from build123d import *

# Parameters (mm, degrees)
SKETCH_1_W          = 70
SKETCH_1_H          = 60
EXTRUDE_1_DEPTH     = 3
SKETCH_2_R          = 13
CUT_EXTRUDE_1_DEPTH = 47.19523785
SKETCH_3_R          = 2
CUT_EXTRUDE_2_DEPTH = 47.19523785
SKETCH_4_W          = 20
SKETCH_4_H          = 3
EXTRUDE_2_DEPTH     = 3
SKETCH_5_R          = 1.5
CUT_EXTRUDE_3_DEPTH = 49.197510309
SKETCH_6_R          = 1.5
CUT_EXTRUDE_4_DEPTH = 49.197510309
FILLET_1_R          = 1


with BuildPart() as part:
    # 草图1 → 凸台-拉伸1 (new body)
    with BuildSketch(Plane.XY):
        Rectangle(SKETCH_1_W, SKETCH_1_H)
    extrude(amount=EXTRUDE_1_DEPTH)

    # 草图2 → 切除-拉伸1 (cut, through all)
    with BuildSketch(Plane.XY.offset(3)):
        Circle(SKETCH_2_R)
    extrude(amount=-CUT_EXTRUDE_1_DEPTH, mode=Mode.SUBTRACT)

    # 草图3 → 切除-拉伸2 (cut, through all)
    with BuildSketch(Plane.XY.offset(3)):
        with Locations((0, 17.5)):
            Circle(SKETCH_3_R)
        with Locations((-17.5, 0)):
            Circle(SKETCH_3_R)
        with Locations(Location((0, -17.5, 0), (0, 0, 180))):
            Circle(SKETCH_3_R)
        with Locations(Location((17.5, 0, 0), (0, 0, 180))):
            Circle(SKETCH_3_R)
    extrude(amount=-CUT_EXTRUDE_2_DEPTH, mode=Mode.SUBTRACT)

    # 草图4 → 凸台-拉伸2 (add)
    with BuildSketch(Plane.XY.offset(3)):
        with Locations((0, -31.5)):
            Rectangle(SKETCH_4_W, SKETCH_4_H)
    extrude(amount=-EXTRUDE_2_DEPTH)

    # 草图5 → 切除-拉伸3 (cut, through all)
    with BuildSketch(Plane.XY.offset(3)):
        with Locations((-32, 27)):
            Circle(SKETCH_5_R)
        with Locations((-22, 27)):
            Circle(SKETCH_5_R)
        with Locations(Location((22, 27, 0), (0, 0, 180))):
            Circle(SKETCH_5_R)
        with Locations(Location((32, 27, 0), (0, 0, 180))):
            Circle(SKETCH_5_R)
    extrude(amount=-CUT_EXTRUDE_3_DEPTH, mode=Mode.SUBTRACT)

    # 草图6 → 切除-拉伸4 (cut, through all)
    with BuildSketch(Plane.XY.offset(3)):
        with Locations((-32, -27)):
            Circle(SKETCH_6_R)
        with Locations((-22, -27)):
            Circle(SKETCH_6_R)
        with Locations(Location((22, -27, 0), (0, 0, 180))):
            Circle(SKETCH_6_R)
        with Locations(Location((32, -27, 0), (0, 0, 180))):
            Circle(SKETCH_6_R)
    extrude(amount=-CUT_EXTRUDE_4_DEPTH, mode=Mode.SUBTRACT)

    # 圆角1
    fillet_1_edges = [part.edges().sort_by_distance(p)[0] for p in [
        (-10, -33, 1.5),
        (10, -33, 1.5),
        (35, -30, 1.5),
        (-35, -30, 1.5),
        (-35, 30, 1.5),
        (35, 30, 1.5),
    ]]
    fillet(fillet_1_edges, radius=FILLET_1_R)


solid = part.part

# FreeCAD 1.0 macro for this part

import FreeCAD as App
import Part
import Sketcher
from FreeCAD import Vector
Q = App.Units.Quantity


def edges_at(feature, points):
    """Names of the edges that pass closest to the given points."""
    edges = feature.Shape.Edges
    near = lambda p: min(range(len(edges)), key=lambda i: edges[i].distToShape(Part.Vertex(*p))[0])
    return sorted({f"Edge{near(p) + 1}" for p in points})

doc = App.newDocument("Part")
params = doc.addObject("Spreadsheet::Sheet", "Params")
for row, (alias, value) in enumerate([
    ("sketch1_width", "70 mm"),
    ("sketch1_height", "60 mm"),
    ("pad1_length", "3 mm"),
    ("sketch2_diameter", "26 mm"),
    ("sketch3_diameter", "4 mm"),
    ("sketch4_width", "20 mm"),
    ("sketch4_height", "3 mm"),
    ("pad2_length", "3 mm"),
    ("sketch5_diameter", "3 mm"),
    ("sketch6_diameter", "3 mm"),
    ("fillet_radius", "1 mm"),
], start=1):
    params.set(f"A{row}", alias)
    params.set(f"B{row}", "=" + value)
    params.setAlias(f"B{row}", alias)

body = doc.addObject("PartDesign::Body", "Body")

# Sketch on XY plane
sketch1 = body.newObject("Sketcher::SketchObject", "Sketch")
sketch1.AttachmentSupport = (doc.getObject("XY_Plane"), [""])
sketch1.MapMode = "FlatFace"
sketch1.addGeometry(Part.LineSegment(Vector(-35, 30, 0), Vector(-35, -30, 0)), False)
sketch1.addGeometry(Part.LineSegment(Vector(-35, -30, 0), Vector(35, -30, 0)), False)
sketch1.addGeometry(Part.LineSegment(Vector(35, -30, 0), Vector(35, 30, 0)), False)
sketch1.addGeometry(Part.LineSegment(Vector(35, 30, 0), Vector(-35, 30, 0)), False)
sketch1.addConstraint(Sketcher.Constraint("Coincident", 0, 2, 1, 1))
sketch1.addConstraint(Sketcher.Constraint("Coincident", 1, 2, 2, 1))
sketch1.addConstraint(Sketcher.Constraint("Coincident", 2, 2, 3, 1))
sketch1.addConstraint(Sketcher.Constraint("Coincident", 3, 2, 0, 1))
sketch1.addConstraint(Sketcher.Constraint("Vertical", 0))
sketch1.addConstraint(Sketcher.Constraint("Horizontal", 1))
sketch1.addConstraint(Sketcher.Constraint("Vertical", 2))
sketch1.addConstraint(Sketcher.Constraint("Horizontal", 3))
sketch1.addConstraint(Sketcher.Constraint("Symmetric", 0, 2, 2, 2, -1, 1))
sketch1.addConstraint(Sketcher.Constraint("DistanceX", 1, 1, 1, 2, Q("70 mm")))
sketch1.addConstraint(Sketcher.Constraint("DistanceY", 0, 2, 0, 1, Q("60 mm")))
sketch1.setExpression("Constraints[9]", "Params.sketch1_width")
sketch1.setExpression("Constraints[10]", "Params.sketch1_height")
pad1 = body.newObject("PartDesign::Pad", "Pad")
pad1.Profile = sketch1
pad1.setExpression("Length", "Params.pad1_length")

# Sketch on XY plane
sketch2 = body.newObject("Sketcher::SketchObject", "Sketch001")
sketch2.AttachmentSupport = (doc.getObject("XY_Plane"), [""])
sketch2.MapMode = "FlatFace"
sketch2.AttachmentOffset = App.Placement(Vector(0, 0, 3), App.Rotation())
sketch2.addGeometry(Part.Circle(Vector(0, 0, 0), Vector(0, 0, 1), 13), False)
sketch2.addConstraint(Sketcher.Constraint("Coincident", 0, 3, -1, 1))
sketch2.addConstraint(Sketcher.Constraint("Diameter", 0, Q("26 mm")))
sketch2.setExpression("Constraints[1]", "Params.sketch2_diameter")
pocket1 = body.newObject("PartDesign::Pocket", "Pocket")
pocket1.Profile = sketch2
pocket1.Type = "ThroughAll"

# Sketch on XY plane
sketch3 = body.newObject("Sketcher::SketchObject", "Sketch002")
sketch3.AttachmentSupport = (doc.getObject("XY_Plane"), [""])
sketch3.MapMode = "FlatFace"
sketch3.AttachmentOffset = App.Placement(Vector(0, 0, 3), App.Rotation())
sketch3.addGeometry(Part.Circle(Vector(0, 17.5, 0), Vector(0, 0, 1), 2), False)
sketch3.addGeometry(Part.Circle(Vector(-17.5, 0, 0), Vector(0, 0, 1), 2), False)
sketch3.addGeometry(Part.Circle(Vector(0, -17.5, 0), Vector(0, 0, 1), 2), False)
sketch3.addGeometry(Part.Circle(Vector(17.5, 0, 0), Vector(0, 0, 1), 2), False)
sketch3.addConstraint(Sketcher.Constraint("Equal", 0, 1))
sketch3.addConstraint(Sketcher.Constraint("Equal", 1, 2))
sketch3.addConstraint(Sketcher.Constraint("Equal", 2, 3))
sketch3.addConstraint(Sketcher.Constraint("Symmetric", 0, 3, 2, 3, -1, 1))
sketch3.addConstraint(Sketcher.Constraint("Symmetric", 1, 3, 3, 3, -1, 1))
sketch3.addConstraint(Sketcher.Constraint("PointOnObject", 0, 3, -2))
sketch3.addConstraint(Sketcher.Constraint("PointOnObject", 1, 3, -1))
sketch3.addConstraint(Sketcher.Constraint("Diameter", 0, Q("4 mm")))
sketch3.addConstraint(Sketcher.Constraint("DistanceY", 2, 3, 0, 3, Q("35 mm")))
sketch3.addConstraint(Sketcher.Constraint("DistanceX", 1, 3, 3, 3, Q("35 mm")))
sketch3.setExpression("Constraints[7]", "Params.sketch3_diameter")
pocket2 = body.newObject("PartDesign::Pocket", "Pocket001")
pocket2.Profile = sketch3
pocket2.Type = "ThroughAll"

# Sketch on XY plane
sketch4 = body.newObject("Sketcher::SketchObject", "Sketch003")
sketch4.AttachmentSupport = (doc.getObject("XY_Plane"), [""])
sketch4.MapMode = "FlatFace"
sketch4.AttachmentOffset = App.Placement(Vector(0, 0, 3), App.Rotation())
sketch4.addGeometry(Part.LineSegment(Vector(-10, -30, 0), Vector(-10, -33, 0)), False)
sketch4.addGeometry(Part.LineSegment(Vector(-10, -33, 0), Vector(10, -33, 0)), False)
sketch4.addGeometry(Part.LineSegment(Vector(10, -33, 0), Vector(10, -30, 0)), False)
sketch4.addGeometry(Part.LineSegment(Vector(10, -30, 0), Vector(-10, -30, 0)), False)
sketch4.addConstraint(Sketcher.Constraint("Coincident", 0, 2, 1, 1))
sketch4.addConstraint(Sketcher.Constraint("Coincident", 1, 2, 2, 1))
sketch4.addConstraint(Sketcher.Constraint("Coincident", 2, 2, 3, 1))
sketch4.addConstraint(Sketcher.Constraint("Coincident", 3, 2, 0, 1))
sketch4.addConstraint(Sketcher.Constraint("Vertical", 0))
sketch4.addConstraint(Sketcher.Constraint("Horizontal", 1))
sketch4.addConstraint(Sketcher.Constraint("Vertical", 2))
sketch4.addConstraint(Sketcher.Constraint("Horizontal", 3))
sketch4.addConstraint(Sketcher.Constraint("DistanceX", 1, 1, 1, 2, Q("20 mm")))
sketch4.addConstraint(Sketcher.Constraint("DistanceY", 0, 2, 0, 1, Q("3 mm")))
sketch4.addConstraint(Sketcher.Constraint("DistanceX", 0, 2, -1, 1, Q("10 mm")))
sketch4.addConstraint(Sketcher.Constraint("DistanceY", 0, 2, -1, 1, Q("33 mm")))
sketch4.setExpression("Constraints[8]", "Params.sketch4_width")
sketch4.setExpression("Constraints[9]", "Params.sketch4_height")
pad2 = body.newObject("PartDesign::Pad", "Pad001")
pad2.Profile = sketch4
pad2.setExpression("Length", "Params.pad2_length")
pad2.Reversed = True

# Sketch on XY plane
sketch5 = body.newObject("Sketcher::SketchObject", "Sketch004")
sketch5.AttachmentSupport = (doc.getObject("XY_Plane"), [""])
sketch5.MapMode = "FlatFace"
sketch5.AttachmentOffset = App.Placement(Vector(0, 0, 3), App.Rotation())
sketch5.addGeometry(Part.Circle(Vector(-32, 27, 0), Vector(0, 0, 1), 1.5), False)
sketch5.addGeometry(Part.Circle(Vector(-22, 27, 0), Vector(0, 0, 1), 1.5), False)
sketch5.addGeometry(Part.Circle(Vector(22, 27, 0), Vector(0, 0, 1), 1.5), False)
sketch5.addGeometry(Part.Circle(Vector(32, 27, 0), Vector(0, 0, 1), 1.5), False)
sketch5.addConstraint(Sketcher.Constraint("Equal", 0, 1))
sketch5.addConstraint(Sketcher.Constraint("Equal", 1, 2))
sketch5.addConstraint(Sketcher.Constraint("Equal", 2, 3))
sketch5.addConstraint(Sketcher.Constraint("Symmetric", 1, 3, 2, 3, -2))
sketch5.addConstraint(Sketcher.Constraint("Symmetric", 0, 3, 3, 3, -2))
sketch5.addConstraint(Sketcher.Constraint("Horizontal", 0, 3, 1, 3))
sketch5.addConstraint(Sketcher.Constraint("Diameter", 0, Q("3 mm")))
sketch5.addConstraint(Sketcher.Constraint("DistanceX", 0, 3, -1, 1, Q("32 mm")))
sketch5.addConstraint(Sketcher.Constraint("DistanceY", -1, 1, 0, 3, Q("27 mm")))
sketch5.addConstraint(Sketcher.Constraint("DistanceX", 1, 3, -1, 1, Q("22 mm")))
sketch5.setExpression("Constraints[6]", "Params.sketch5_diameter")
pocket3 = body.newObject("PartDesign::Pocket", "Pocket002")
pocket3.Profile = sketch5
pocket3.Type = "ThroughAll"

# Sketch on XY plane
sketch6 = body.newObject("Sketcher::SketchObject", "Sketch005")
sketch6.AttachmentSupport = (doc.getObject("XY_Plane"), [""])
sketch6.MapMode = "FlatFace"
sketch6.AttachmentOffset = App.Placement(Vector(0, 0, 3), App.Rotation())
sketch6.addGeometry(Part.Circle(Vector(-32, -27, 0), Vector(0, 0, 1), 1.5), False)
sketch6.addGeometry(Part.Circle(Vector(-22, -27, 0), Vector(0, 0, 1), 1.5), False)
sketch6.addGeometry(Part.Circle(Vector(22, -27, 0), Vector(0, 0, 1), 1.5), False)
sketch6.addGeometry(Part.Circle(Vector(32, -27, 0), Vector(0, 0, 1), 1.5), False)
sketch6.addConstraint(Sketcher.Constraint("Equal", 0, 1))
sketch6.addConstraint(Sketcher.Constraint("Equal", 1, 2))
sketch6.addConstraint(Sketcher.Constraint("Equal", 2, 3))
sketch6.addConstraint(Sketcher.Constraint("Symmetric", 1, 3, 2, 3, -2))
sketch6.addConstraint(Sketcher.Constraint("Symmetric", 0, 3, 3, 3, -2))
sketch6.addConstraint(Sketcher.Constraint("Horizontal", 0, 3, 1, 3))
sketch6.addConstraint(Sketcher.Constraint("Diameter", 0, Q("3 mm")))
sketch6.addConstraint(Sketcher.Constraint("DistanceX", 0, 3, -1, 1, Q("32 mm")))
sketch6.addConstraint(Sketcher.Constraint("DistanceY", 0, 3, -1, 1, Q("27 mm")))
sketch6.addConstraint(Sketcher.Constraint("DistanceX", 1, 3, -1, 1, Q("22 mm")))
sketch6.setExpression("Constraints[6]", "Params.sketch6_diameter")
pocket4 = body.newObject("PartDesign::Pocket", "Pocket003")
pocket4.Profile = sketch6
pocket4.Type = "ThroughAll"
doc.recompute()

fillet = body.newObject("PartDesign::Fillet", "Fillet")
fillet.Base = (pocket4, edges_at(pocket4, [
    (-10, -33, 1.5),
    (10, -33, 1.5),
    (35, -30, 1.5),
    (-35, -30, 1.5),
    (-35, 30, 1.5),
    (35, 30, 1.5),
]))
fillet.setExpression("Radius", "Params.fillet_radius")

doc.recompute()
